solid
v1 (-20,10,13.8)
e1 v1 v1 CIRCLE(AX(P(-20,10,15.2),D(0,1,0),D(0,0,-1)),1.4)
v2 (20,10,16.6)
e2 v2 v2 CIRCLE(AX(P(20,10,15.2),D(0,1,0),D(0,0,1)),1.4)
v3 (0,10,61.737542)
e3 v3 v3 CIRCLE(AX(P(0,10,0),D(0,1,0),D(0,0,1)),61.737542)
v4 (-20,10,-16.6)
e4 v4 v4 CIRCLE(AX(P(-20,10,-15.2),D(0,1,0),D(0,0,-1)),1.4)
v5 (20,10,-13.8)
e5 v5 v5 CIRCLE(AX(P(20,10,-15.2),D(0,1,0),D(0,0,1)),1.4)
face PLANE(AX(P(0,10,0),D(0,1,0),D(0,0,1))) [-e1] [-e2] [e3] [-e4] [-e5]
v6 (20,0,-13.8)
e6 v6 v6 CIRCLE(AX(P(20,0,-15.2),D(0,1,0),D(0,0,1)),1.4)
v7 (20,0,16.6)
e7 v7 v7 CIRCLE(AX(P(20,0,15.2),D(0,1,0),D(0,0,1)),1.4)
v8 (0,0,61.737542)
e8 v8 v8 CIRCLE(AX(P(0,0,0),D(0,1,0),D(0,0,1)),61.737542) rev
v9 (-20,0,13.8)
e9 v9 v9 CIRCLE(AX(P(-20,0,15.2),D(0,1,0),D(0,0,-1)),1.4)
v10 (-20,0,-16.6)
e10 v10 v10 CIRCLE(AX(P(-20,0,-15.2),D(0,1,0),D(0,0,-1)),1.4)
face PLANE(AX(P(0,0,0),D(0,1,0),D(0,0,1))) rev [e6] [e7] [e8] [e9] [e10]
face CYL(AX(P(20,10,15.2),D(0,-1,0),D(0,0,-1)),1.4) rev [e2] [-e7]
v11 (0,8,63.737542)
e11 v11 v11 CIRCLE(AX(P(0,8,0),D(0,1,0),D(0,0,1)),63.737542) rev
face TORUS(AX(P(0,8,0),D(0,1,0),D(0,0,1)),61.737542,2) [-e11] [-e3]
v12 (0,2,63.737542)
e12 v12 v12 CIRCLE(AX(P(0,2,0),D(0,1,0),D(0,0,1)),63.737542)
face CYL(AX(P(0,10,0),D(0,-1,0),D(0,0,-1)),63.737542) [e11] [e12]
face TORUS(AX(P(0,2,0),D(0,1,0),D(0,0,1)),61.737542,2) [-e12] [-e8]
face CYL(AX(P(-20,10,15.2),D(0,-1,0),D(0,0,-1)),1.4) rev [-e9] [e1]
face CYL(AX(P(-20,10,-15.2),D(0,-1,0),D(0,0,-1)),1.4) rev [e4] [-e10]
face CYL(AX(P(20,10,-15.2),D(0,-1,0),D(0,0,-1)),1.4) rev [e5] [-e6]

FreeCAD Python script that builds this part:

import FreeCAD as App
import Part
import Sketcher
from FreeCAD import Vector
Q = App.Units.Quantity


def edges_at(feature, points):
    """Names of the edges that pass closest to the given points."""
    edges = feature.Shape.Edges
    near = lambda p: min(range(len(edges)), key=lambda i: edges[i].distToShape(Part.Vertex(*p))[0])
    return sorted({f"Edge{near(p) + 1}" for p in points})

doc = App.newDocument("Part")
body = doc.addObject("PartDesign::Body", "Body")

# Sketch on XZ plane
sketch1 = body.newObject("Sketcher::SketchObject", "Sketch")
sketch1.AttachmentSupport = (doc.getObject("XZ_Plane"), [""])
sketch1.MapMode = "FlatFace"
sketch1.addGeometry(Part.Circle(Vector(0, 0, 0), Vector(0, 0, 1), 63.7), False)
sketch1.addGeometry(Part.Circle(Vector(-20, -15.2, 0), Vector(0, 0, 1), 1.4), False)
sketch1.addGeometry(Part.Circle(Vector(-20, 15.2, 0), Vector(0, 0, 1), 1.4), False)
sketch1.addGeometry(Part.Circle(Vector(20, -15.2, 0), Vector(0, 0, 1), 1.4), False)
sketch1.addGeometry(Part.Circle(Vector(20, 15.2, 0), Vector(0, 0, 1), 1.4), False)
sketch1.addConstraint(Sketcher.Constraint("Coincident", 0, 3, -1, 1))
sketch1.addConstraint(Sketcher.Constraint("Equal", 1, 2))
sketch1.addConstraint(Sketcher.Constraint("Equal", 2, 3))
sketch1.addConstraint(Sketcher.Constraint("Equal", 3, 4))
sketch1.addConstraint(Sketcher.Constraint("Symmetric", 2, 3, 3, 3, -1, 1))
sketch1.addConstraint(Sketcher.Constraint("Symmetric", 1, 3, 4, 3, -1, 1))
sketch1.addConstraint(Sketcher.Constraint("Symmetric", 1, 3, 3, 3, -2))
sketch1.addConstraint(Sketcher.Constraint("Diameter", 1, Q("2.8 mm")))
sketch1.addConstraint(Sketcher.Constraint("DistanceX", 1, 3, -1, 1, Q("20 mm")))
sketch1.addConstraint(Sketcher.Constraint("DistanceY", 1, 3, -1, 1, Q("15.2 mm")))
sketch1.addConstraint(Sketcher.Constraint("Diameter", 0, Q("127.475084 mm")))
pad1 = body.newObject("PartDesign::Pad", "Pad")
pad1.Profile = sketch1
pad1.Length = 10
pad1.Reversed = True
doc.recompute()

fillet = body.newObject("PartDesign::Fillet", "Fillet")
fillet.Base = (pad1, edges_at(pad1, [(0, 0, -63.738)]))
fillet.Radius = 2
doc.recompute()

fillet2 = body.newObject("PartDesign::Fillet", "Fillet001")
fillet2.Base = (fillet, edges_at(fillet, [(0, 10, -63.738)]))
fillet2.Radius = 2

doc.recompute()
